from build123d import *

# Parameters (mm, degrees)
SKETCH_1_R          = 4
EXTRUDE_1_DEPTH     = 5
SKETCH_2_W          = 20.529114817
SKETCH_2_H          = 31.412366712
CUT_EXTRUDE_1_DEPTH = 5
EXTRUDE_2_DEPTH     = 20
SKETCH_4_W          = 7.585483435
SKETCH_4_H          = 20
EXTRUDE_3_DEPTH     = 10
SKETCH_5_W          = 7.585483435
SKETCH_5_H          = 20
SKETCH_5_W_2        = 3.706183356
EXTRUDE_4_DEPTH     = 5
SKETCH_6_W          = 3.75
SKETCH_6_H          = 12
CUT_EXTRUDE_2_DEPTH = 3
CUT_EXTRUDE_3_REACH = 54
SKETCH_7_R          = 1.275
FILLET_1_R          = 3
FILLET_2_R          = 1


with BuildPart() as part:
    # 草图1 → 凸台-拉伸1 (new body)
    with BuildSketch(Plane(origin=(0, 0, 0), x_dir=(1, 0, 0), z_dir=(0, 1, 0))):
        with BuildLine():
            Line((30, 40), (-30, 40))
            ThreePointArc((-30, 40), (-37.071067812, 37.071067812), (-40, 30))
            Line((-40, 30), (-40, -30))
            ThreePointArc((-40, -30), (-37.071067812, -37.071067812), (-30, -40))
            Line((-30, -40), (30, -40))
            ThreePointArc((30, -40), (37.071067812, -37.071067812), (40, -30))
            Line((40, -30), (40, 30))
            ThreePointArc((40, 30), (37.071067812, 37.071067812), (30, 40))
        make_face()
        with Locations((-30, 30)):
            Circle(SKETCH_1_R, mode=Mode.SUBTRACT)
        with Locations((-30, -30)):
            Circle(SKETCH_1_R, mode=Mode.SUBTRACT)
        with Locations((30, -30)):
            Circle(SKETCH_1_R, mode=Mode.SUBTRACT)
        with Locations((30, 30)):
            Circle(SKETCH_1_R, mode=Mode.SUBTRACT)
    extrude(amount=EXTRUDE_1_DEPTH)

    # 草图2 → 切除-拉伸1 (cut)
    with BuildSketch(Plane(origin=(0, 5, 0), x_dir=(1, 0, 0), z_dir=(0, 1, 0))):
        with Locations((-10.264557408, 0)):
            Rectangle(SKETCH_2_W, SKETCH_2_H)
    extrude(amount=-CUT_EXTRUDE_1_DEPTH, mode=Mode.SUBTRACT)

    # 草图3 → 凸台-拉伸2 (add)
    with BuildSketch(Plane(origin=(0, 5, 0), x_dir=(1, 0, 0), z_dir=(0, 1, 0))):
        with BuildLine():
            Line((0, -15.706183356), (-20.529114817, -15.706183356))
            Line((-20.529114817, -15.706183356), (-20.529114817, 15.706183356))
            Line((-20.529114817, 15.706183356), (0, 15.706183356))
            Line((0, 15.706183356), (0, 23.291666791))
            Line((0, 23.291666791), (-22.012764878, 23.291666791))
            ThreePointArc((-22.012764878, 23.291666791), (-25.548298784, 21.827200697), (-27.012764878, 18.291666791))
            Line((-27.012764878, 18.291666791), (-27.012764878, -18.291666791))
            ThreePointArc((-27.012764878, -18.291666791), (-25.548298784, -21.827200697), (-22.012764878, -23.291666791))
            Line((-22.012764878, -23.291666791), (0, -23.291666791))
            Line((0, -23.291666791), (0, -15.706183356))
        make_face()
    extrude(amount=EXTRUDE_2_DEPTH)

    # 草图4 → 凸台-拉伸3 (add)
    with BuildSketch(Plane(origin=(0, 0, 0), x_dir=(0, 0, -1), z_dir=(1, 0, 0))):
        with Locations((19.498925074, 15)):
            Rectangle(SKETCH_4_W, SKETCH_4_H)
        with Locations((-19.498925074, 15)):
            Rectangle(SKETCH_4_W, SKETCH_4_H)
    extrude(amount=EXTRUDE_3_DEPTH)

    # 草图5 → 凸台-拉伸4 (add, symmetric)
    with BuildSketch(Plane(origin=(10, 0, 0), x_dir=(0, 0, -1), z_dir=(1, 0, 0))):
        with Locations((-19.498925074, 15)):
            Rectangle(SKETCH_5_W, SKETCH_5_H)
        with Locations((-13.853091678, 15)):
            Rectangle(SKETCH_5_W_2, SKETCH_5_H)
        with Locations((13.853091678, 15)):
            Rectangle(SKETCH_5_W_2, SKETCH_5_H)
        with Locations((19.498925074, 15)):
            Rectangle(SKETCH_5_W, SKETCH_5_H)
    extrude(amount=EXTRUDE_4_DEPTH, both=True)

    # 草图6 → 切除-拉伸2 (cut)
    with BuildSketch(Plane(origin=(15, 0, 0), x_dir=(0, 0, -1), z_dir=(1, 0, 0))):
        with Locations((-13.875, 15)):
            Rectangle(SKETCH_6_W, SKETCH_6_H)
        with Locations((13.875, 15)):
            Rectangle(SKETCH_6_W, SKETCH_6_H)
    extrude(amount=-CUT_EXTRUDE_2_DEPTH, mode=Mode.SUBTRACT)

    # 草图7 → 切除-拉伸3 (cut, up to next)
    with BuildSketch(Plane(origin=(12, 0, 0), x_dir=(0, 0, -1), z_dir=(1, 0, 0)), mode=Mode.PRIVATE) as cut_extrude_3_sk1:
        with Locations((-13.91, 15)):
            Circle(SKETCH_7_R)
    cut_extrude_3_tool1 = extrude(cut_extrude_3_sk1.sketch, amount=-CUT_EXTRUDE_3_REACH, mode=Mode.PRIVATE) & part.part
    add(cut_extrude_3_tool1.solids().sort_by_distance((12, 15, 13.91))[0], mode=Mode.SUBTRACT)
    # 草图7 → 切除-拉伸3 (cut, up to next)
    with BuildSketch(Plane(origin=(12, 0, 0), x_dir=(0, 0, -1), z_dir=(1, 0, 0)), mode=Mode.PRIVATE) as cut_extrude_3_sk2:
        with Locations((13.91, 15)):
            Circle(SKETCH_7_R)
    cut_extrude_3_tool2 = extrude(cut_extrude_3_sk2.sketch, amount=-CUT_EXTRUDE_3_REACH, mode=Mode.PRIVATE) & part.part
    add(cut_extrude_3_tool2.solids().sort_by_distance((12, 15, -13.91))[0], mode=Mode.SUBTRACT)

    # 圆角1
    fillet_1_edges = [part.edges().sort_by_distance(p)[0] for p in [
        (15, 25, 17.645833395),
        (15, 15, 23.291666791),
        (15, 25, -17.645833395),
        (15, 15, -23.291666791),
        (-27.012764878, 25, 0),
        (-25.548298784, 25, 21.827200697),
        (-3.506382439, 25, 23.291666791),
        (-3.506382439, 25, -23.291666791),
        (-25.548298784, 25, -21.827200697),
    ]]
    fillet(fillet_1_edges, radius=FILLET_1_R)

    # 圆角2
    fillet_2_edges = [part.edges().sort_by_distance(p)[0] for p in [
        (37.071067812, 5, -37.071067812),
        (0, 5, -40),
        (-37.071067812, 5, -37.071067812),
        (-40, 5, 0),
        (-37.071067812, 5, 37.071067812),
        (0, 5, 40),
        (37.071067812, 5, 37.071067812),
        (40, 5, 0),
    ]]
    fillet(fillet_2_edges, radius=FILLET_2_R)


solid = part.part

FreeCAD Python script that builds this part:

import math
import FreeCAD as App
import Part
import Sketcher
Q = App.Units.Quantity


def edges_at(feature, points):
    """Names of the edges that pass closest to the given points."""
    edges = feature.Shape.Edges
    near = lambda p: min(range(len(edges)), key=lambda i: edges[i].distToShape(Part.Vertex(*p))[0])
    return sorted({f"Edge{near(p) + 1}" for p in points})

doc = App.newDocument("Part")
body = doc.addObject("PartDesign::Body", "Body")

sketch1 = body.newObject("Sketcher::SketchObject", "Sketch")
sketch1.AttachmentSupport = (doc.getObject("XZ_Plane"), [""])
sketch1.MapMode = "FlatFace"
sketch1.addGeometry([
    Part.LineSegment(App.Vector(30, -40, 0), App.Vector(-30, -40, 0)),
    Part.ArcOfCircle(Part.Circle(App.Vector(-30, -30, 0), App.Vector(0, 0, 1), 10), math.radians(180), math.radians(270)),
    Part.LineSegment(App.Vector(-40, -30, 0), App.Vector(-40, 30, 0)),
    Part.ArcOfCircle(Part.Circle(App.Vector(-30, 30, 0), App.Vector(0, 0, 1), 10), math.radians(90), math.radians(180)),
    Part.LineSegment(App.Vector(-30, 40, 0), App.Vector(30, 40, 0)),
    Part.ArcOfCircle(Part.Circle(App.Vector(30, 30, 0), App.Vector(0, 0, 1), 10), math.radians(0), math.radians(90)),
    Part.LineSegment(App.Vector(40, 30, 0), App.Vector(40, -30, 0)),
    Part.ArcOfCircle(Part.Circle(App.Vector(30, -30, 0), App.Vector(0, 0, 1), 10), math.radians(-90), math.radians(0)),
    Part.Circle(App.Vector(-30, 30, 0), App.Vector(0, 0, 1), 4),
    Part.Circle(App.Vector(30, 30, 0), App.Vector(0, 0, 1), 4),
    Part.Circle(App.Vector(-30, -30, 0), App.Vector(0, 0, 1), 4),
    Part.Circle(App.Vector(30, -30, 0), App.Vector(0, 0, 1), 4),
], False)
sketch1.addConstraint([
    Sketcher.Constraint("Tangent", 0, 2, 1, 2),
    Sketcher.Constraint("Tangent", 1, 1, 2, 1),
    Sketcher.Constraint("Tangent", 2, 2, 3, 2),
    Sketcher.Constraint("Tangent", 3, 1, 4, 1),
    Sketcher.Constraint("Tangent", 4, 2, 5, 2),
    Sketcher.Constraint("Tangent", 5, 1, 6, 1),
    Sketcher.Constraint("Tangent", 6, 2, 7, 2),
    Sketcher.Constraint("Tangent", 7, 1, 0, 1),
    Sketcher.Constraint("Horizontal", 0),
    Sketcher.Constraint("Vertical", 2),
    Sketcher.Constraint("Horizontal", 4),
    Sketcher.Constraint("Vertical", 6),
    Sketcher.Constraint("Coincident", 8, 3, 3, 3),
    Sketcher.Constraint("Coincident", 9, 3, 5, 3),
    Sketcher.Constraint("Coincident", 10, 3, 1, 3),
    Sketcher.Constraint("Coincident", 11, 3, 7, 3),
    Sketcher.Constraint("Equal", 1, 3),
    Sketcher.Constraint("Equal", 3, 5),
    Sketcher.Constraint("Equal", 5, 7),
    Sketcher.Constraint("Equal", 8, 9),
    Sketcher.Constraint("Equal", 9, 10),
    Sketcher.Constraint("Equal", 10, 11),
    Sketcher.Constraint("Symmetric", 1, 3, 5, 3, -1, 1),
    Sketcher.Constraint("Equal", 4, 2),
    Sketcher.Constraint("Diameter", 8, Q("8 mm")),
    Sketcher.Constraint("Radius", 1, Q("10 mm")),
    Sketcher.Constraint("DistanceX", 0, 2, 0, 1, Q("60 mm")),
])
pad1 = body.newObject("PartDesign::Pad", "Pad")
pad1.Profile = sketch1
pad1.Length = 5
pad1.Reversed = True

sketch2 = body.newObject("Sketcher::SketchObject", "Sketch001")
sketch2.AttachmentSupport = (doc.getObject("XZ_Plane"), [""])
sketch2.MapMode = "FlatFace"
sketch2.AttachmentOffset = App.Placement(App.Vector(0, 0, -5), App.Rotation())
sketch2.addGeometry([
    Part.LineSegment(App.Vector(-21, -16, 0), App.Vector(-21, 16, 0)),
    Part.LineSegment(App.Vector(-21, 16, 0), App.Vector(0, 16, 0)),
    Part.LineSegment(App.Vector(0, 16, 0), App.Vector(0, -16, 0)),
    Part.LineSegment(App.Vector(0, -16, 0), App.Vector(-21, -16, 0)),
], False)
sketch2.addConstraint([
    Sketcher.Constraint("Coincident", 0, 2, 1, 1),
    Sketcher.Constraint("Coincident", 1, 2, 2, 1),
    Sketcher.Constraint("Coincident", 2, 2, 3, 1),
    Sketcher.Constraint("Coincident", 3, 2, 0, 1),
    Sketcher.Constraint("Vertical", 0),
    Sketcher.Constraint("Horizontal", 1),
    Sketcher.Constraint("Vertical", 2),
    Sketcher.Constraint("Horizontal", 3),
    Sketcher.Constraint("Symmetric", 1, 2, 2, 2, -1, 1),
    Sketcher.Constraint("DistanceX", 1, 1, 1, 2, Q("20.529115 mm")),
    Sketcher.Constraint("DistanceY", 0, 1, 0, 2, Q("31.412367 mm")),
])
pocket1 = body.newObject("PartDesign::Pocket", "Pocket")
pocket1.Profile = sketch2
pocket1.Length = 5
pocket1.Reversed = True

sketch3 = body.newObject("Sketcher::SketchObject", "Sketch002")
sketch3.AttachmentSupport = (doc.getObject("XZ_Plane"), [""])
sketch3.MapMode = "FlatFace"
sketch3.AttachmentOffset = App.Placement(App.Vector(0, 0, -5), App.Rotation())
sketch3.addGeometry([
    Part.LineSegment(App.Vector(0, 16, 0), App.Vector(-21, 16, 0)),
    Part.LineSegment(App.Vector(-21, 16, 0), App.Vector(-21, -16, 0)),
    Part.LineSegment(App.Vector(-21, -16, 0), App.Vector(0, -16, 0)),
    Part.LineSegment(App.Vector(0, -16, 0), App.Vector(0, -23, 0)),
    Part.LineSegment(App.Vector(0, -23, 0), App.Vector(-22, -23, 0)),
    Part.ArcOfCircle(Part.Circle(App.Vector(-22, -18, 0), App.Vector(0, 0, 1), 5), math.radians(180), math.radians(270)),
    Part.LineSegment(App.Vector(-27, -18, 0), App.Vector(-27, 18, 0)),
    Part.ArcOfCircle(Part.Circle(App.Vector(-22, 18, 0), App.Vector(0, 0, 1), 5), math.radians(90), math.radians(180)),
    Part.LineSegment(App.Vector(-22, 23, 0), App.Vector(0, 23, 0)),
    Part.LineSegment(App.Vector(0, 23, 0), App.Vector(0, 16, 0)),
], False)
sketch3.addConstraint([
    Sketcher.Constraint("Coincident", 0, 2, 1, 1),
    Sketcher.Constraint("Coincident", 1, 2, 2, 1),
    Sketcher.Constraint("Coincident", 2, 2, 3, 1),
    Sketcher.Constraint("Coincident", 3, 2, 4, 1),
    Sketcher.Constraint("Tangent", 4, 2, 5, 2),
    Sketcher.Constraint("Tangent", 5, 1, 6, 1),
    Sketcher.Constraint("Tangent", 6, 2, 7, 2),
    Sketcher.Constraint("Tangent", 7, 1, 8, 1),
    Sketcher.Constraint("Coincident", 8, 2, 9, 1),
    Sketcher.Constraint("Coincident", 9, 2, 0, 1),
    Sketcher.Constraint("Horizontal", 0),
    Sketcher.Constraint("Vertical", 1),
    Sketcher.Constraint("Horizontal", 2),
    Sketcher.Constraint("Vertical", 3),
    Sketcher.Constraint("Horizontal", 4),
    Sketcher.Constraint("Vertical", 6),
    Sketcher.Constraint("Horizontal", 8),
    Sketcher.Constraint("Vertical", 9),
    Sketcher.Constraint("Equal", 5, 7),
    Sketcher.Constraint("Symmetric", 3, 2, 8, 2, -1, 1),
    Sketcher.Constraint("Symmetric", 2, 2, 9, 2, -1),
    Sketcher.Constraint("Radius", 5, Q("5 mm")),
    Sketcher.Constraint("DistanceX", 0, 2, 0, 1, Q("20.529115 mm")),
    Sketcher.Constraint("DistanceX", 4, 2, 4, 1, Q("22.012765 mm")),
    Sketcher.Constraint("DistanceY", 1, 2, 1, 1, Q("31.412367 mm")),
    Sketcher.Constraint("DistanceY", 3, 2, 3, 1, Q("7.585483 mm")),
])
pad2 = body.newObject("PartDesign::Pad", "Pad001")
pad2.Profile = sketch3
pad2.Length = 20
pad2.Reversed = True

sketch4 = body.newObject("Sketcher::SketchObject", "Sketch003")
sketch4.AttachmentSupport = (doc.getObject("YZ_Plane"), [""])
sketch4.MapMode = "FlatFace"
sketch4.addGeometry([
    Part.LineSegment(App.Vector(25, -16, 0), App.Vector(5, -16, 0)),
    Part.LineSegment(App.Vector(5, -16, 0), App.Vector(5, -23, 0)),
    Part.LineSegment(App.Vector(5, -23, 0), App.Vector(25, -23, 0)),
    Part.LineSegment(App.Vector(25, -23, 0), App.Vector(25, -16, 0)),
    Part.LineSegment(App.Vector(25, 23, 0), App.Vector(5, 23, 0)),
    Part.LineSegment(App.Vector(5, 23, 0), App.Vector(5, 16, 0)),
    Part.LineSegment(App.Vector(5, 16, 0), App.Vector(25, 16, 0)),
    Part.LineSegment(App.Vector(25, 16, 0), App.Vector(25, 23, 0)),
], False)
sketch4.addConstraint([
    Sketcher.Constraint("Coincident", 0, 2, 1, 1),
    Sketcher.Constraint("Coincident", 1, 2, 2, 1),
    Sketcher.Constraint("Coincident", 2, 2, 3, 1),
    Sketcher.Constraint("Coincident", 3, 2, 0, 1),
    Sketcher.Constraint("Coincident", 4, 2, 5, 1),
    Sketcher.Constraint("Coincident", 5, 2, 6, 1),
    Sketcher.Constraint("Coincident", 6, 2, 7, 1),
    Sketcher.Constraint("Coincident", 7, 2, 4, 1),
    Sketcher.Constraint("Horizontal", 0),
    Sketcher.Constraint("Vertical", 1),
    Sketcher.Constraint("Horizontal", 2),
    Sketcher.Constraint("Vertical", 3),
    Sketcher.Constraint("Horizontal", 4),
    Sketcher.Constraint("Vertical", 5),
    Sketcher.Constraint("Horizontal", 6),
    Sketcher.Constraint("Vertical", 7),
    Sketcher.Constraint("Symmetric", 1, 2, 4, 2, -1),
    Sketcher.Constraint("Symmetric", 3, 2, 6, 2, -1),
    Sketcher.Constraint("DistanceX", 0, 2, 0, 1, Q("20 mm")),
    Sketcher.Constraint("DistanceX", -1, 1, 0, 2, Q("5 mm")),
    Sketcher.Constraint("DistanceY", 1, 2, 1, 1, Q("7.585483 mm")),
    Sketcher.Constraint("DistanceY", 0, 2, 4, 2, Q("38.99785 mm")),
])
pad3 = body.newObject("PartDesign::Pad", "Pad002")
pad3.Profile = sketch4
pad3.Length = 10

sketch5 = body.newObject("Sketcher::SketchObject", "Sketch004")
sketch5.AttachmentSupport = (doc.getObject("YZ_Plane"), [""])
sketch5.MapMode = "FlatFace"
sketch5.AttachmentOffset = App.Placement(App.Vector(0, 0, 10), App.Rotation())
sketch5.addGeometry([
    Part.LineSegment(App.Vector(25, 23, 0), App.Vector(5, 23, 0)),
    Part.LineSegment(App.Vector(5, 23, 0), App.Vector(5, 12, 0)),
    Part.LineSegment(App.Vector(5, 12, 0), App.Vector(25, 12, 0)),
    Part.LineSegment(App.Vector(25, 12, 0), App.Vector(25, 23, 0)),
    Part.LineSegment(App.Vector(25, -12, 0), App.Vector(5, -12, 0)),
    Part.LineSegment(App.Vector(5, -12, 0), App.Vector(5, -23, 0)),
    Part.LineSegment(App.Vector(5, -23, 0), App.Vector(25, -23, 0)),
    Part.LineSegment(App.Vector(25, -23, 0), App.Vector(25, -12, 0)),
], False)
sketch5.addConstraint([
    Sketcher.Constraint("Coincident", 0, 2, 1, 1),
    Sketcher.Constraint("Coincident", 1, 2, 2, 1),
    Sketcher.Constraint("Coincident", 2, 2, 3, 1),
    Sketcher.Constraint("Coincident", 3, 2, 0, 1),
    Sketcher.Constraint("Coincident", 4, 2, 5, 1),
    Sketcher.Constraint("Coincident", 5, 2, 6, 1),
    Sketcher.Constraint("Coincident", 6, 2, 7, 1),
    Sketcher.Constraint("Coincident", 7, 2, 4, 1),
    Sketcher.Constraint("Horizontal", 0),
    Sketcher.Constraint("Vertical", 1),
    Sketcher.Constraint("Horizontal", 2),
    Sketcher.Constraint("Vertical", 3),
    Sketcher.Constraint("Horizontal", 4),
    Sketcher.Constraint("Vertical", 5),
    Sketcher.Constraint("Horizontal", 6),
    Sketcher.Constraint("Vertical", 7),
    Sketcher.Constraint("Symmetric", 1, 2, 4, 2, -1),
    Sketcher.Constraint("Symmetric", 3, 2, 6, 2, -1),
    Sketcher.Constraint("DistanceX", 0, 2, 0, 1, Q("20 mm")),
    Sketcher.Constraint("DistanceX", -1, 1, 0, 2, Q("5 mm")),
    Sketcher.Constraint("DistanceY", -1, 1, 1, 2, Q("12 mm")),
    Sketcher.Constraint("DistanceY", 1, 2, 1, 1, Q("11.291667 mm")),
])
pad4 = body.newObject("PartDesign::Pad", "Pad003")
pad4.Profile = sketch5
pad4.Length = 10
pad4.Midplane = True

sketch6 = body.newObject("Sketcher::SketchObject", "Sketch005")
sketch6.AttachmentSupport = (doc.getObject("YZ_Plane"), [""])
sketch6.MapMode = "FlatFace"
sketch6.AttachmentOffset = App.Placement(App.Vector(0, 0, 15), App.Rotation())
sketch6.addGeometry([
    Part.LineSegment(App.Vector(21, 15.8, 0), App.Vector(9, 15.8, 0)),
    Part.LineSegment(App.Vector(9, 15.8, 0), App.Vector(9, 12, 0)),
    Part.LineSegment(App.Vector(9, 12, 0), App.Vector(21, 12, 0)),
    Part.LineSegment(App.Vector(21, 12, 0), App.Vector(21, 15.8, 0)),
    Part.LineSegment(App.Vector(21, -12, 0), App.Vector(9, -12, 0)),
    Part.LineSegment(App.Vector(9, -12, 0), App.Vector(9, -15.8, 0)),
    Part.LineSegment(App.Vector(9, -15.8, 0), App.Vector(21, -15.8, 0)),
    Part.LineSegment(App.Vector(21, -15.8, 0), App.Vector(21, -12, 0)),
], False)
sketch6.addConstraint([
    Sketcher.Constraint("Coincident", 0, 2, 1, 1),
    Sketcher.Constraint("Coincident", 1, 2, 2, 1),
    Sketcher.Constraint("Coincident", 2, 2, 3, 1),
    Sketcher.Constraint("Coincident", 3, 2, 0, 1),
    Sketcher.Constraint("Coincident", 4, 2, 5, 1),
    Sketcher.Constraint("Coincident", 5, 2, 6, 1),
    Sketcher.Constraint("Coincident", 6, 2, 7, 1),
    Sketcher.Constraint("Coincident", 7, 2, 4, 1),
    Sketcher.Constraint("Horizontal", 0),
    Sketcher.Constraint("Vertical", 1),
    Sketcher.Constraint("Horizontal", 2),
    Sketcher.Constraint("Vertical", 3),
    Sketcher.Constraint("Horizontal", 4),
    Sketcher.Constraint("Vertical", 5),
    Sketcher.Constraint("Horizontal", 6),
    Sketcher.Constraint("Vertical", 7),
    Sketcher.Constraint("Symmetric", 1, 2, 4, 2, -1),
    Sketcher.Constraint("Symmetric", 3, 2, 6, 2, -1),
    Sketcher.Constraint("DistanceX", 0, 2, 0, 1, Q("12 mm")),
    Sketcher.Constraint("DistanceX", -1, 1, 0, 2, Q("9 mm")),
    Sketcher.Constraint("DistanceY", -1, 1, 1, 2, Q("12 mm")),
    Sketcher.Constraint("DistanceY", 1, 2, 1, 1, Q("3.75 mm")),
])
pocket2 = body.newObject("PartDesign::Pocket", "Pocket001")
pocket2.Profile = sketch6
pocket2.Length = 3

sketch7 = body.newObject("Sketcher::SketchObject", "Sketch006")
sketch7.AttachmentSupport = (doc.getObject("YZ_Plane"), [""])
sketch7.MapMode = "FlatFace"
sketch7.AttachmentOffset = App.Placement(App.Vector(0, 0, 12), App.Rotation())
sketch7.addGeometry(Part.Circle(App.Vector(15, 13.9, 0), App.Vector(0, 0, 1), 1.3), False)
sketch7.addConstraint([
    Sketcher.Constraint("Diameter", 0, Q("2.55 mm")),
    Sketcher.Constraint("DistanceX", -1, 1, 0, 3, Q("15 mm")),
    Sketcher.Constraint("DistanceY", -1, 1, 0, 3, Q("13.91 mm")),
])
pocket3 = body.newObject("PartDesign::Pocket", "Pocket002")
pocket3.Profile = sketch7
pocket3.Type = "UpToFirst"

sketch8 = body.newObject("Sketcher::SketchObject", "Sketch007")
sketch8.AttachmentSupport = (doc.getObject("YZ_Plane"), [""])
sketch8.MapMode = "FlatFace"
sketch8.AttachmentOffset = App.Placement(App.Vector(0, 0, 12), App.Rotation())
sketch8.addGeometry(Part.Circle(App.Vector(15, -13.9, 0), App.Vector(0, 0, 1), 1.3), False)
sketch8.addConstraint([
    Sketcher.Constraint("Diameter", 0, Q("2.55 mm")),
    Sketcher.Constraint("DistanceX", -1, 1, 0, 3, Q("15 mm")),
    Sketcher.Constraint("DistanceY", 0, 3, -1, 1, Q("13.91 mm")),
])
pocket4 = body.newObject("PartDesign::Pocket", "Pocket003")
pocket4.Profile = sketch8
pocket4.Type = "UpToFirst"
doc.recompute()

fillet = body.newObject("PartDesign::Fillet", "Fillet")
fillet.Base = (pocket4, edges_at(pocket4, [
    (15, 25, 17.646),
    (15, 15, 23.292),
    (15, 25, -17.646),
    (15, 15, -23.292),
    (-27.013, 25, 0),
    (-25.548, 25, 21.827),
    (-11.006, 25, 23.292),
    (-11.006, 25, -23.292),
    (-25.548, 25, -21.827),
]))
fillet.Radius = 3
doc.recompute()

fillet2 = body.newObject("PartDesign::Fillet", "Fillet001")
fillet2.Base = (fillet, edges_at(fillet, [
    (37.071, 5, -37.071),
    (0, 5, -40),
    (-37.071, 5, -37.071),
    (-40, 5, 0),
    (-37.071, 5, 37.071),
    (0, 5, 40),
    (37.071, 5, 37.071),
    (40, 5, 0),
]))
fillet2.Radius = 1

doc.recompute()
